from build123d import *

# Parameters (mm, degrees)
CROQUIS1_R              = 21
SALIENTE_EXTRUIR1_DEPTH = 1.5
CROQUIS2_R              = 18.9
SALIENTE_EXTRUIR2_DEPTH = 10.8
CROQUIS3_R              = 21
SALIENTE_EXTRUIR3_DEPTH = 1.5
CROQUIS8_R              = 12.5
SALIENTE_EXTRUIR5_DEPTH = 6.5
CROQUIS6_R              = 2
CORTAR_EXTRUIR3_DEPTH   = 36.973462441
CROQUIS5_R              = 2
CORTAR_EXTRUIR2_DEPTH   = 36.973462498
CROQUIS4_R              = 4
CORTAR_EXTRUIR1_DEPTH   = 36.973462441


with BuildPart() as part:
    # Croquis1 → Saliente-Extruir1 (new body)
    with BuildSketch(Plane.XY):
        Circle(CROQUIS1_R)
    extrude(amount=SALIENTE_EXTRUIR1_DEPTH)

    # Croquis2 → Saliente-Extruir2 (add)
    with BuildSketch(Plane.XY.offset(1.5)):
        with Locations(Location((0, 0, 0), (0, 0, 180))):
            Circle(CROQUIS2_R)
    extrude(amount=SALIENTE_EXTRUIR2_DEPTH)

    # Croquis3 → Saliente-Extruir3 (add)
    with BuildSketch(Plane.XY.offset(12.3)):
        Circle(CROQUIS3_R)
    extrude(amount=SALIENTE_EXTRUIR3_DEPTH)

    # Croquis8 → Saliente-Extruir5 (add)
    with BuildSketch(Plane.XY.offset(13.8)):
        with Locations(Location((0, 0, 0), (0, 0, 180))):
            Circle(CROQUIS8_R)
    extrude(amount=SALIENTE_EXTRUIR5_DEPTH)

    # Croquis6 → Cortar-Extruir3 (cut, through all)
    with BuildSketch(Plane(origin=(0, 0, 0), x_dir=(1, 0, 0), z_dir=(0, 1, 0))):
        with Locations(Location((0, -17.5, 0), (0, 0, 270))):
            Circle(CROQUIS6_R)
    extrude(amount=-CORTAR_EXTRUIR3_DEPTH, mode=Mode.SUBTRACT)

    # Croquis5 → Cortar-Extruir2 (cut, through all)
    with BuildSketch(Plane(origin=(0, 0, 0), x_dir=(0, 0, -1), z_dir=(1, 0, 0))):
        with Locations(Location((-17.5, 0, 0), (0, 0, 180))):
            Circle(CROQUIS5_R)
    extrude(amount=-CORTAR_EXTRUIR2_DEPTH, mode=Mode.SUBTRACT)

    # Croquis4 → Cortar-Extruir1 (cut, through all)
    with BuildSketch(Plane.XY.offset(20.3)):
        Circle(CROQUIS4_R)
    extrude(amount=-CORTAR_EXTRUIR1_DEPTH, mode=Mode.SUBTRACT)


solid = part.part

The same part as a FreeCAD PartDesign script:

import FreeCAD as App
import Part
import Sketcher
from FreeCAD import Vector

doc = App.newDocument("Part")
body = doc.addObject("PartDesign::Body", "Body")

# Sketch on XY plane
sketch1 = doc.addObject("Sketcher::SketchObject", "Sketch")
body.addObject(sketch1)
sketch1.AttachmentSupport = (doc.XY_Plane, [""])
sketch1.MapMode = "FlatFace"
sketch1.addGeometry(Part.Circle(Vector(0, 0, 0), Vector(0, 0, 1), 21), False)
sketch1.addConstraint([
    Sketcher.Constraint("Coincident", 0, 3, -1, 1),
    Sketcher.Constraint("Diameter", 0, 42.0),
])
pad1 = doc.addObject("PartDesign::Pad", "Pad")
body.addObject(pad1)
pad1.Profile = sketch1
pad1.Length = 1.5

# Sketch on XY plane
sketch2 = doc.addObject("Sketcher::SketchObject", "Sketch001")
body.addObject(sketch2)
sketch2.AttachmentSupport = (doc.XY_Plane, [""])
sketch2.MapMode = "FlatFace"
sketch2.AttachmentOffset = App.Placement(Vector(0, 0, 1.5), App.Rotation())
sketch2.addGeometry(Part.Circle(Vector(0, 0, 0), Vector(0, 0, 1), 18.9), False)
sketch2.addConstraint([
    Sketcher.Constraint("Coincident", 0, 3, -1, 1),
    Sketcher.Constraint("Diameter", 0, 37.8),
])
pad2 = doc.addObject("PartDesign::Pad", "Pad001")
body.addObject(pad2)
pad2.Profile = sketch2
pad2.Length = 10.8

# Sketch on XY plane
sketch3 = doc.addObject("Sketcher::SketchObject", "Sketch002")
body.addObject(sketch3)
sketch3.AttachmentSupport = (doc.XY_Plane, [""])
sketch3.MapMode = "FlatFace"
sketch3.AttachmentOffset = App.Placement(Vector(0, 0, 12.3), App.Rotation())
sketch3.addGeometry(Part.Circle(Vector(0, 0, 0), Vector(0, 0, 1), 21), False)
sketch3.addConstraint([
    Sketcher.Constraint("Coincident", 0, 3, -1, 1),
    Sketcher.Constraint("Diameter", 0, 42.0),
])
pad3 = doc.addObject("PartDesign::Pad", "Pad002")
body.addObject(pad3)
pad3.Profile = sketch3
pad3.Length = 1.5

# Sketch on XY plane
sketch4 = doc.addObject("Sketcher::SketchObject", "Sketch003")
body.addObject(sketch4)
sketch4.AttachmentSupport = (doc.XY_Plane, [""])
sketch4.MapMode = "FlatFace"
sketch4.AttachmentOffset = App.Placement(Vector(0, 0, 13.8), App.Rotation())
sketch4.addGeometry(Part.Circle(Vector(0, 0, 0), Vector(0, 0, 1), 12.5), False)
sketch4.addConstraint([
    Sketcher.Constraint("Coincident", 0, 3, -1, 1),
    Sketcher.Constraint("Diameter", 0, 25.0),
])
pad4 = doc.addObject("PartDesign::Pad", "Pad003")
body.addObject(pad4)
pad4.Profile = sketch4
pad4.Length = 6.5

# Sketch on XZ plane
sketch5 = doc.addObject("Sketcher::SketchObject", "Sketch004")
body.addObject(sketch5)
sketch5.AttachmentSupport = (doc.XZ_Plane, [""])
sketch5.MapMode = "FlatFace"
sketch5.addGeometry(Part.Circle(Vector(0, 17.5, 0), Vector(0, 0, 1), 2), False)
sketch5.addConstraint([
    Sketcher.Constraint("PointOnObject", 0, 3, -2),
    Sketcher.Constraint("Diameter", 0, 4.0),
    Sketcher.Constraint("DistanceY", -1, 1, 0, 3, 17.5),
])
pocket1 = doc.addObject("PartDesign::Pocket", "Pocket")
body.addObject(pocket1)
pocket1.Profile = sketch5
pocket1.Type = "ThroughAll"
pocket1.Reversed = True

# Sketch on YZ plane
sketch6 = doc.addObject("Sketcher::SketchObject", "Sketch005")
body.addObject(sketch6)
sketch6.AttachmentSupport = (doc.YZ_Plane, [""])
sketch6.MapMode = "FlatFace"
sketch6.addGeometry(Part.Circle(Vector(0, 17.5, 0), Vector(0, 0, 1), 2), False)
sketch6.addConstraint([
    Sketcher.Constraint("PointOnObject", 0, 3, -2),
    Sketcher.Constraint("Diameter", 0, 4.0),
    Sketcher.Constraint("DistanceY", -1, 1, 0, 3, 17.5),
])
pocket2 = doc.addObject("PartDesign::Pocket", "Pocket001")
body.addObject(pocket2)
pocket2.Profile = sketch6
pocket2.Type = "ThroughAll"

# Sketch on XY plane
sketch7 = doc.addObject("Sketcher::SketchObject", "Sketch006")
body.addObject(sketch7)
sketch7.AttachmentSupport = (doc.XY_Plane, [""])
sketch7.MapMode = "FlatFace"
sketch7.AttachmentOffset = App.Placement(Vector(0, 0, 20.3), App.Rotation())
sketch7.addGeometry(Part.Circle(Vector(0, 0, 0), Vector(0, 0, 1), 4), False)
sketch7.addConstraint([
    Sketcher.Constraint("Coincident", 0, 3, -1, 1),
    Sketcher.Constraint("Diameter", 0, 8.0),
])
pocket3 = doc.addObject("PartDesign::Pocket", "Pocket002")
body.addObject(pocket3)
pocket3.Profile = sketch7
pocket3.Type = "ThroughAll"

doc.recompute()
